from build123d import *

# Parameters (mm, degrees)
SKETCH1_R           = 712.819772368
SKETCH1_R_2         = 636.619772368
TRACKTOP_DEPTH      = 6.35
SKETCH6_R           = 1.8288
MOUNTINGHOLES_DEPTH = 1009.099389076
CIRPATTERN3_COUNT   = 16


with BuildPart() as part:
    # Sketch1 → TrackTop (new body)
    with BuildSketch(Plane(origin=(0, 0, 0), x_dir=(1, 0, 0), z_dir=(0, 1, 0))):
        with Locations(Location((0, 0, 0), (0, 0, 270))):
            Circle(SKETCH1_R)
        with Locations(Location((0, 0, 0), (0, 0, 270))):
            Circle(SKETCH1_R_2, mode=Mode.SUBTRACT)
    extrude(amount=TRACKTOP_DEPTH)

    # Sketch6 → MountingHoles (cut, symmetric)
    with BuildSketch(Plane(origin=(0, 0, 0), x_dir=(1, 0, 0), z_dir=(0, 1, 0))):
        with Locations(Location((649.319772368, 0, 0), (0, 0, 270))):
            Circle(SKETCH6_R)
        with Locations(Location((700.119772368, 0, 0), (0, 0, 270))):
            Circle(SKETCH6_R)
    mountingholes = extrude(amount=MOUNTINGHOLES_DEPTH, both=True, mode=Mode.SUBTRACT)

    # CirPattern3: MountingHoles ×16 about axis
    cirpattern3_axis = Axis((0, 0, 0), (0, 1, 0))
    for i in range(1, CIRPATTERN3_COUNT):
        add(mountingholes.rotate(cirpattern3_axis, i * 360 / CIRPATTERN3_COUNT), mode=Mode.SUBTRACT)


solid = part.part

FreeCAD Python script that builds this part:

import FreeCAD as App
import Part
import Sketcher
Q = App.Units.Quantity

doc = App.newDocument("Part")
params = doc.addObject("Spreadsheet::Sheet", "Params")
for row, (alias, value) in enumerate([
    ("pad1_length", "0.25 in"),
    ("sketch2_diameter", "0.144 in"),
    ("pocket1_length", "2018.198778 mm"),
], start=1):
    params.set(f"A{row}", alias)
    params.set(f"B{row}", "=" + value)
    params.setAlias(f"B{row}", alias)

body = doc.addObject("PartDesign::Body", "Body")

# Sketch on XZ plane
sketch1 = body.newObject("Sketcher::SketchObject", "Sketch")
sketch1.AttachmentSupport = (doc.getObject("XZ_Plane"), [""])
sketch1.MapMode = "FlatFace"
sketch1.addGeometry([
    Part.Circle(App.Vector(0, 0, 0), App.Vector(0, 0, 1), 712.819772),
    Part.Circle(App.Vector(0, 0, 0), App.Vector(0, 0, 1), 636.619772),
], False)
sketch1.addConstraint([
    Sketcher.Constraint("Coincident", 0, 3, -1, 1),
    Sketcher.Constraint("Coincident", 1, 3, -1, 1),
    Sketcher.Constraint("Diameter", 0, 1425.639545),
    Sketcher.Constraint("Diameter", 1, 1273.239545),
])
pad1 = body.newObject("PartDesign::Pad", "Pad")
pad1.Profile = sketch1
pad1.setExpression("Length", "Params.pad1_length")
pad1.Reversed = True

# Sketch on XZ plane
sketch2 = body.newObject("Sketcher::SketchObject", "Sketch001")
sketch2.AttachmentSupport = (doc.getObject("XZ_Plane"), [""])
sketch2.MapMode = "FlatFace"
sketch2.addGeometry([
    Part.Circle(App.Vector(649.319772, 0, 0), App.Vector(0, 0, 1), 1.8288),
    Part.Circle(App.Vector(700.119772, 0, 0), App.Vector(0, 0, 1), 1.8288),
], False)
sketch2.addConstraint([
    Sketcher.Constraint("Equal", 0, 1),
    Sketcher.Constraint("PointOnObject", 0, 3, -1),
    Sketcher.Constraint("PointOnObject", 1, 3, -1),
    Sketcher.Constraint("Diameter", 0, Q("0.144 in")),
    Sketcher.Constraint("DistanceX", 0, 3, 1, 3, Q("2 in")),
    Sketcher.Constraint("DistanceX", -1, 1, 0, 3, 649.319772),
])
sketch2.setExpression("Constraints[3]", "Params.sketch2_diameter")
pocket1 = body.newObject("PartDesign::Pocket", "Pocket")
pocket1.Profile = sketch2
pocket1.setExpression("Length", "Params.pocket1_length")
pocket1.Midplane = True
doc.recompute()

polarpattern = body.newObject("PartDesign::PolarPattern", "PolarPattern")
polarpattern.Originals = [pocket1]
polarpattern.Axis = (doc.getObject("Y_Axis"), [""])
polarpattern.Angle = 360
polarpattern.Occurrences = 16
body.Tip = polarpattern

doc.recompute()
